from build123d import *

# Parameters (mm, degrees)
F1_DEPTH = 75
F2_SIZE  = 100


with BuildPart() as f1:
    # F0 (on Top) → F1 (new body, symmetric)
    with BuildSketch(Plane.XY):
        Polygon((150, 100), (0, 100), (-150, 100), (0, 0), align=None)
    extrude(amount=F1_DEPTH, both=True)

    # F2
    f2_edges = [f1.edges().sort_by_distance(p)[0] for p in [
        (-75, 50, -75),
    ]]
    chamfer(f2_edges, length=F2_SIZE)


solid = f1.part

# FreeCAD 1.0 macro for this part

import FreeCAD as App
import Part
import Sketcher

V = App.Vector


def edges_at(feature, points):
    """Names of the edges that pass closest to the given points."""
    edges = feature.Shape.Edges
    near = lambda p: min(range(len(edges)), key=lambda i: edges[i].distToShape(Part.Vertex(*p))[0])
    return sorted({f"Edge{near(p) + 1}" for p in points})


def add_polygon(sketch, points):
    """Adds a closed chain of lines whose ends are joined by coincident constraints."""
    first, n = sketch.GeometryCount, len(points)
    for a, b in zip(points, points[1:] + points[:1]):
        sketch.addGeometry(Part.LineSegment(App.Vector(*a, 0), App.Vector(*b, 0)), False)
    for i in range(n):
        sketch.addConstraint(Sketcher.Constraint("Coincident", first + i, 2, first + (i + 1) % n, 1))

doc = App.newDocument("Part")
body = doc.addObject("PartDesign::Body", "Body")

# Sketch on XY plane
sketch1 = body.newObject("Sketcher::SketchObject", "Sketch")
sketch1.AttachmentSupport = (doc.getObject("XY_Plane"), [""])
sketch1.MapMode = "FlatFace"
add_polygon(sketch1, [(150, 100), (-150, 100), (0, 0)])  # lines 0-2
sketch1.addConstraint([
    Sketcher.Constraint("Horizontal", 0),
    Sketcher.Constraint("Coincident", 1, 2, -1, 1),
    Sketcher.Constraint("Equal", 1, 2),
    Sketcher.Constraint("DistanceX", 0, 2, 0, 1, 300.0),
    Sketcher.Constraint("DistanceY", -1, 1, 0, 2, 100.0),
])
pad1 = body.newObject("PartDesign::Pad", "Pad")
pad1.Profile = sketch1
pad1.Length = 150
pad1.Midplane = True
doc.recompute()

chamfer = body.newObject("PartDesign::Chamfer", "Chamfer")
chamfer.Base = (pad1, edges_at(pad1, [(-75, 50, -75)]))
chamfer.Size = 100

doc.recompute()
